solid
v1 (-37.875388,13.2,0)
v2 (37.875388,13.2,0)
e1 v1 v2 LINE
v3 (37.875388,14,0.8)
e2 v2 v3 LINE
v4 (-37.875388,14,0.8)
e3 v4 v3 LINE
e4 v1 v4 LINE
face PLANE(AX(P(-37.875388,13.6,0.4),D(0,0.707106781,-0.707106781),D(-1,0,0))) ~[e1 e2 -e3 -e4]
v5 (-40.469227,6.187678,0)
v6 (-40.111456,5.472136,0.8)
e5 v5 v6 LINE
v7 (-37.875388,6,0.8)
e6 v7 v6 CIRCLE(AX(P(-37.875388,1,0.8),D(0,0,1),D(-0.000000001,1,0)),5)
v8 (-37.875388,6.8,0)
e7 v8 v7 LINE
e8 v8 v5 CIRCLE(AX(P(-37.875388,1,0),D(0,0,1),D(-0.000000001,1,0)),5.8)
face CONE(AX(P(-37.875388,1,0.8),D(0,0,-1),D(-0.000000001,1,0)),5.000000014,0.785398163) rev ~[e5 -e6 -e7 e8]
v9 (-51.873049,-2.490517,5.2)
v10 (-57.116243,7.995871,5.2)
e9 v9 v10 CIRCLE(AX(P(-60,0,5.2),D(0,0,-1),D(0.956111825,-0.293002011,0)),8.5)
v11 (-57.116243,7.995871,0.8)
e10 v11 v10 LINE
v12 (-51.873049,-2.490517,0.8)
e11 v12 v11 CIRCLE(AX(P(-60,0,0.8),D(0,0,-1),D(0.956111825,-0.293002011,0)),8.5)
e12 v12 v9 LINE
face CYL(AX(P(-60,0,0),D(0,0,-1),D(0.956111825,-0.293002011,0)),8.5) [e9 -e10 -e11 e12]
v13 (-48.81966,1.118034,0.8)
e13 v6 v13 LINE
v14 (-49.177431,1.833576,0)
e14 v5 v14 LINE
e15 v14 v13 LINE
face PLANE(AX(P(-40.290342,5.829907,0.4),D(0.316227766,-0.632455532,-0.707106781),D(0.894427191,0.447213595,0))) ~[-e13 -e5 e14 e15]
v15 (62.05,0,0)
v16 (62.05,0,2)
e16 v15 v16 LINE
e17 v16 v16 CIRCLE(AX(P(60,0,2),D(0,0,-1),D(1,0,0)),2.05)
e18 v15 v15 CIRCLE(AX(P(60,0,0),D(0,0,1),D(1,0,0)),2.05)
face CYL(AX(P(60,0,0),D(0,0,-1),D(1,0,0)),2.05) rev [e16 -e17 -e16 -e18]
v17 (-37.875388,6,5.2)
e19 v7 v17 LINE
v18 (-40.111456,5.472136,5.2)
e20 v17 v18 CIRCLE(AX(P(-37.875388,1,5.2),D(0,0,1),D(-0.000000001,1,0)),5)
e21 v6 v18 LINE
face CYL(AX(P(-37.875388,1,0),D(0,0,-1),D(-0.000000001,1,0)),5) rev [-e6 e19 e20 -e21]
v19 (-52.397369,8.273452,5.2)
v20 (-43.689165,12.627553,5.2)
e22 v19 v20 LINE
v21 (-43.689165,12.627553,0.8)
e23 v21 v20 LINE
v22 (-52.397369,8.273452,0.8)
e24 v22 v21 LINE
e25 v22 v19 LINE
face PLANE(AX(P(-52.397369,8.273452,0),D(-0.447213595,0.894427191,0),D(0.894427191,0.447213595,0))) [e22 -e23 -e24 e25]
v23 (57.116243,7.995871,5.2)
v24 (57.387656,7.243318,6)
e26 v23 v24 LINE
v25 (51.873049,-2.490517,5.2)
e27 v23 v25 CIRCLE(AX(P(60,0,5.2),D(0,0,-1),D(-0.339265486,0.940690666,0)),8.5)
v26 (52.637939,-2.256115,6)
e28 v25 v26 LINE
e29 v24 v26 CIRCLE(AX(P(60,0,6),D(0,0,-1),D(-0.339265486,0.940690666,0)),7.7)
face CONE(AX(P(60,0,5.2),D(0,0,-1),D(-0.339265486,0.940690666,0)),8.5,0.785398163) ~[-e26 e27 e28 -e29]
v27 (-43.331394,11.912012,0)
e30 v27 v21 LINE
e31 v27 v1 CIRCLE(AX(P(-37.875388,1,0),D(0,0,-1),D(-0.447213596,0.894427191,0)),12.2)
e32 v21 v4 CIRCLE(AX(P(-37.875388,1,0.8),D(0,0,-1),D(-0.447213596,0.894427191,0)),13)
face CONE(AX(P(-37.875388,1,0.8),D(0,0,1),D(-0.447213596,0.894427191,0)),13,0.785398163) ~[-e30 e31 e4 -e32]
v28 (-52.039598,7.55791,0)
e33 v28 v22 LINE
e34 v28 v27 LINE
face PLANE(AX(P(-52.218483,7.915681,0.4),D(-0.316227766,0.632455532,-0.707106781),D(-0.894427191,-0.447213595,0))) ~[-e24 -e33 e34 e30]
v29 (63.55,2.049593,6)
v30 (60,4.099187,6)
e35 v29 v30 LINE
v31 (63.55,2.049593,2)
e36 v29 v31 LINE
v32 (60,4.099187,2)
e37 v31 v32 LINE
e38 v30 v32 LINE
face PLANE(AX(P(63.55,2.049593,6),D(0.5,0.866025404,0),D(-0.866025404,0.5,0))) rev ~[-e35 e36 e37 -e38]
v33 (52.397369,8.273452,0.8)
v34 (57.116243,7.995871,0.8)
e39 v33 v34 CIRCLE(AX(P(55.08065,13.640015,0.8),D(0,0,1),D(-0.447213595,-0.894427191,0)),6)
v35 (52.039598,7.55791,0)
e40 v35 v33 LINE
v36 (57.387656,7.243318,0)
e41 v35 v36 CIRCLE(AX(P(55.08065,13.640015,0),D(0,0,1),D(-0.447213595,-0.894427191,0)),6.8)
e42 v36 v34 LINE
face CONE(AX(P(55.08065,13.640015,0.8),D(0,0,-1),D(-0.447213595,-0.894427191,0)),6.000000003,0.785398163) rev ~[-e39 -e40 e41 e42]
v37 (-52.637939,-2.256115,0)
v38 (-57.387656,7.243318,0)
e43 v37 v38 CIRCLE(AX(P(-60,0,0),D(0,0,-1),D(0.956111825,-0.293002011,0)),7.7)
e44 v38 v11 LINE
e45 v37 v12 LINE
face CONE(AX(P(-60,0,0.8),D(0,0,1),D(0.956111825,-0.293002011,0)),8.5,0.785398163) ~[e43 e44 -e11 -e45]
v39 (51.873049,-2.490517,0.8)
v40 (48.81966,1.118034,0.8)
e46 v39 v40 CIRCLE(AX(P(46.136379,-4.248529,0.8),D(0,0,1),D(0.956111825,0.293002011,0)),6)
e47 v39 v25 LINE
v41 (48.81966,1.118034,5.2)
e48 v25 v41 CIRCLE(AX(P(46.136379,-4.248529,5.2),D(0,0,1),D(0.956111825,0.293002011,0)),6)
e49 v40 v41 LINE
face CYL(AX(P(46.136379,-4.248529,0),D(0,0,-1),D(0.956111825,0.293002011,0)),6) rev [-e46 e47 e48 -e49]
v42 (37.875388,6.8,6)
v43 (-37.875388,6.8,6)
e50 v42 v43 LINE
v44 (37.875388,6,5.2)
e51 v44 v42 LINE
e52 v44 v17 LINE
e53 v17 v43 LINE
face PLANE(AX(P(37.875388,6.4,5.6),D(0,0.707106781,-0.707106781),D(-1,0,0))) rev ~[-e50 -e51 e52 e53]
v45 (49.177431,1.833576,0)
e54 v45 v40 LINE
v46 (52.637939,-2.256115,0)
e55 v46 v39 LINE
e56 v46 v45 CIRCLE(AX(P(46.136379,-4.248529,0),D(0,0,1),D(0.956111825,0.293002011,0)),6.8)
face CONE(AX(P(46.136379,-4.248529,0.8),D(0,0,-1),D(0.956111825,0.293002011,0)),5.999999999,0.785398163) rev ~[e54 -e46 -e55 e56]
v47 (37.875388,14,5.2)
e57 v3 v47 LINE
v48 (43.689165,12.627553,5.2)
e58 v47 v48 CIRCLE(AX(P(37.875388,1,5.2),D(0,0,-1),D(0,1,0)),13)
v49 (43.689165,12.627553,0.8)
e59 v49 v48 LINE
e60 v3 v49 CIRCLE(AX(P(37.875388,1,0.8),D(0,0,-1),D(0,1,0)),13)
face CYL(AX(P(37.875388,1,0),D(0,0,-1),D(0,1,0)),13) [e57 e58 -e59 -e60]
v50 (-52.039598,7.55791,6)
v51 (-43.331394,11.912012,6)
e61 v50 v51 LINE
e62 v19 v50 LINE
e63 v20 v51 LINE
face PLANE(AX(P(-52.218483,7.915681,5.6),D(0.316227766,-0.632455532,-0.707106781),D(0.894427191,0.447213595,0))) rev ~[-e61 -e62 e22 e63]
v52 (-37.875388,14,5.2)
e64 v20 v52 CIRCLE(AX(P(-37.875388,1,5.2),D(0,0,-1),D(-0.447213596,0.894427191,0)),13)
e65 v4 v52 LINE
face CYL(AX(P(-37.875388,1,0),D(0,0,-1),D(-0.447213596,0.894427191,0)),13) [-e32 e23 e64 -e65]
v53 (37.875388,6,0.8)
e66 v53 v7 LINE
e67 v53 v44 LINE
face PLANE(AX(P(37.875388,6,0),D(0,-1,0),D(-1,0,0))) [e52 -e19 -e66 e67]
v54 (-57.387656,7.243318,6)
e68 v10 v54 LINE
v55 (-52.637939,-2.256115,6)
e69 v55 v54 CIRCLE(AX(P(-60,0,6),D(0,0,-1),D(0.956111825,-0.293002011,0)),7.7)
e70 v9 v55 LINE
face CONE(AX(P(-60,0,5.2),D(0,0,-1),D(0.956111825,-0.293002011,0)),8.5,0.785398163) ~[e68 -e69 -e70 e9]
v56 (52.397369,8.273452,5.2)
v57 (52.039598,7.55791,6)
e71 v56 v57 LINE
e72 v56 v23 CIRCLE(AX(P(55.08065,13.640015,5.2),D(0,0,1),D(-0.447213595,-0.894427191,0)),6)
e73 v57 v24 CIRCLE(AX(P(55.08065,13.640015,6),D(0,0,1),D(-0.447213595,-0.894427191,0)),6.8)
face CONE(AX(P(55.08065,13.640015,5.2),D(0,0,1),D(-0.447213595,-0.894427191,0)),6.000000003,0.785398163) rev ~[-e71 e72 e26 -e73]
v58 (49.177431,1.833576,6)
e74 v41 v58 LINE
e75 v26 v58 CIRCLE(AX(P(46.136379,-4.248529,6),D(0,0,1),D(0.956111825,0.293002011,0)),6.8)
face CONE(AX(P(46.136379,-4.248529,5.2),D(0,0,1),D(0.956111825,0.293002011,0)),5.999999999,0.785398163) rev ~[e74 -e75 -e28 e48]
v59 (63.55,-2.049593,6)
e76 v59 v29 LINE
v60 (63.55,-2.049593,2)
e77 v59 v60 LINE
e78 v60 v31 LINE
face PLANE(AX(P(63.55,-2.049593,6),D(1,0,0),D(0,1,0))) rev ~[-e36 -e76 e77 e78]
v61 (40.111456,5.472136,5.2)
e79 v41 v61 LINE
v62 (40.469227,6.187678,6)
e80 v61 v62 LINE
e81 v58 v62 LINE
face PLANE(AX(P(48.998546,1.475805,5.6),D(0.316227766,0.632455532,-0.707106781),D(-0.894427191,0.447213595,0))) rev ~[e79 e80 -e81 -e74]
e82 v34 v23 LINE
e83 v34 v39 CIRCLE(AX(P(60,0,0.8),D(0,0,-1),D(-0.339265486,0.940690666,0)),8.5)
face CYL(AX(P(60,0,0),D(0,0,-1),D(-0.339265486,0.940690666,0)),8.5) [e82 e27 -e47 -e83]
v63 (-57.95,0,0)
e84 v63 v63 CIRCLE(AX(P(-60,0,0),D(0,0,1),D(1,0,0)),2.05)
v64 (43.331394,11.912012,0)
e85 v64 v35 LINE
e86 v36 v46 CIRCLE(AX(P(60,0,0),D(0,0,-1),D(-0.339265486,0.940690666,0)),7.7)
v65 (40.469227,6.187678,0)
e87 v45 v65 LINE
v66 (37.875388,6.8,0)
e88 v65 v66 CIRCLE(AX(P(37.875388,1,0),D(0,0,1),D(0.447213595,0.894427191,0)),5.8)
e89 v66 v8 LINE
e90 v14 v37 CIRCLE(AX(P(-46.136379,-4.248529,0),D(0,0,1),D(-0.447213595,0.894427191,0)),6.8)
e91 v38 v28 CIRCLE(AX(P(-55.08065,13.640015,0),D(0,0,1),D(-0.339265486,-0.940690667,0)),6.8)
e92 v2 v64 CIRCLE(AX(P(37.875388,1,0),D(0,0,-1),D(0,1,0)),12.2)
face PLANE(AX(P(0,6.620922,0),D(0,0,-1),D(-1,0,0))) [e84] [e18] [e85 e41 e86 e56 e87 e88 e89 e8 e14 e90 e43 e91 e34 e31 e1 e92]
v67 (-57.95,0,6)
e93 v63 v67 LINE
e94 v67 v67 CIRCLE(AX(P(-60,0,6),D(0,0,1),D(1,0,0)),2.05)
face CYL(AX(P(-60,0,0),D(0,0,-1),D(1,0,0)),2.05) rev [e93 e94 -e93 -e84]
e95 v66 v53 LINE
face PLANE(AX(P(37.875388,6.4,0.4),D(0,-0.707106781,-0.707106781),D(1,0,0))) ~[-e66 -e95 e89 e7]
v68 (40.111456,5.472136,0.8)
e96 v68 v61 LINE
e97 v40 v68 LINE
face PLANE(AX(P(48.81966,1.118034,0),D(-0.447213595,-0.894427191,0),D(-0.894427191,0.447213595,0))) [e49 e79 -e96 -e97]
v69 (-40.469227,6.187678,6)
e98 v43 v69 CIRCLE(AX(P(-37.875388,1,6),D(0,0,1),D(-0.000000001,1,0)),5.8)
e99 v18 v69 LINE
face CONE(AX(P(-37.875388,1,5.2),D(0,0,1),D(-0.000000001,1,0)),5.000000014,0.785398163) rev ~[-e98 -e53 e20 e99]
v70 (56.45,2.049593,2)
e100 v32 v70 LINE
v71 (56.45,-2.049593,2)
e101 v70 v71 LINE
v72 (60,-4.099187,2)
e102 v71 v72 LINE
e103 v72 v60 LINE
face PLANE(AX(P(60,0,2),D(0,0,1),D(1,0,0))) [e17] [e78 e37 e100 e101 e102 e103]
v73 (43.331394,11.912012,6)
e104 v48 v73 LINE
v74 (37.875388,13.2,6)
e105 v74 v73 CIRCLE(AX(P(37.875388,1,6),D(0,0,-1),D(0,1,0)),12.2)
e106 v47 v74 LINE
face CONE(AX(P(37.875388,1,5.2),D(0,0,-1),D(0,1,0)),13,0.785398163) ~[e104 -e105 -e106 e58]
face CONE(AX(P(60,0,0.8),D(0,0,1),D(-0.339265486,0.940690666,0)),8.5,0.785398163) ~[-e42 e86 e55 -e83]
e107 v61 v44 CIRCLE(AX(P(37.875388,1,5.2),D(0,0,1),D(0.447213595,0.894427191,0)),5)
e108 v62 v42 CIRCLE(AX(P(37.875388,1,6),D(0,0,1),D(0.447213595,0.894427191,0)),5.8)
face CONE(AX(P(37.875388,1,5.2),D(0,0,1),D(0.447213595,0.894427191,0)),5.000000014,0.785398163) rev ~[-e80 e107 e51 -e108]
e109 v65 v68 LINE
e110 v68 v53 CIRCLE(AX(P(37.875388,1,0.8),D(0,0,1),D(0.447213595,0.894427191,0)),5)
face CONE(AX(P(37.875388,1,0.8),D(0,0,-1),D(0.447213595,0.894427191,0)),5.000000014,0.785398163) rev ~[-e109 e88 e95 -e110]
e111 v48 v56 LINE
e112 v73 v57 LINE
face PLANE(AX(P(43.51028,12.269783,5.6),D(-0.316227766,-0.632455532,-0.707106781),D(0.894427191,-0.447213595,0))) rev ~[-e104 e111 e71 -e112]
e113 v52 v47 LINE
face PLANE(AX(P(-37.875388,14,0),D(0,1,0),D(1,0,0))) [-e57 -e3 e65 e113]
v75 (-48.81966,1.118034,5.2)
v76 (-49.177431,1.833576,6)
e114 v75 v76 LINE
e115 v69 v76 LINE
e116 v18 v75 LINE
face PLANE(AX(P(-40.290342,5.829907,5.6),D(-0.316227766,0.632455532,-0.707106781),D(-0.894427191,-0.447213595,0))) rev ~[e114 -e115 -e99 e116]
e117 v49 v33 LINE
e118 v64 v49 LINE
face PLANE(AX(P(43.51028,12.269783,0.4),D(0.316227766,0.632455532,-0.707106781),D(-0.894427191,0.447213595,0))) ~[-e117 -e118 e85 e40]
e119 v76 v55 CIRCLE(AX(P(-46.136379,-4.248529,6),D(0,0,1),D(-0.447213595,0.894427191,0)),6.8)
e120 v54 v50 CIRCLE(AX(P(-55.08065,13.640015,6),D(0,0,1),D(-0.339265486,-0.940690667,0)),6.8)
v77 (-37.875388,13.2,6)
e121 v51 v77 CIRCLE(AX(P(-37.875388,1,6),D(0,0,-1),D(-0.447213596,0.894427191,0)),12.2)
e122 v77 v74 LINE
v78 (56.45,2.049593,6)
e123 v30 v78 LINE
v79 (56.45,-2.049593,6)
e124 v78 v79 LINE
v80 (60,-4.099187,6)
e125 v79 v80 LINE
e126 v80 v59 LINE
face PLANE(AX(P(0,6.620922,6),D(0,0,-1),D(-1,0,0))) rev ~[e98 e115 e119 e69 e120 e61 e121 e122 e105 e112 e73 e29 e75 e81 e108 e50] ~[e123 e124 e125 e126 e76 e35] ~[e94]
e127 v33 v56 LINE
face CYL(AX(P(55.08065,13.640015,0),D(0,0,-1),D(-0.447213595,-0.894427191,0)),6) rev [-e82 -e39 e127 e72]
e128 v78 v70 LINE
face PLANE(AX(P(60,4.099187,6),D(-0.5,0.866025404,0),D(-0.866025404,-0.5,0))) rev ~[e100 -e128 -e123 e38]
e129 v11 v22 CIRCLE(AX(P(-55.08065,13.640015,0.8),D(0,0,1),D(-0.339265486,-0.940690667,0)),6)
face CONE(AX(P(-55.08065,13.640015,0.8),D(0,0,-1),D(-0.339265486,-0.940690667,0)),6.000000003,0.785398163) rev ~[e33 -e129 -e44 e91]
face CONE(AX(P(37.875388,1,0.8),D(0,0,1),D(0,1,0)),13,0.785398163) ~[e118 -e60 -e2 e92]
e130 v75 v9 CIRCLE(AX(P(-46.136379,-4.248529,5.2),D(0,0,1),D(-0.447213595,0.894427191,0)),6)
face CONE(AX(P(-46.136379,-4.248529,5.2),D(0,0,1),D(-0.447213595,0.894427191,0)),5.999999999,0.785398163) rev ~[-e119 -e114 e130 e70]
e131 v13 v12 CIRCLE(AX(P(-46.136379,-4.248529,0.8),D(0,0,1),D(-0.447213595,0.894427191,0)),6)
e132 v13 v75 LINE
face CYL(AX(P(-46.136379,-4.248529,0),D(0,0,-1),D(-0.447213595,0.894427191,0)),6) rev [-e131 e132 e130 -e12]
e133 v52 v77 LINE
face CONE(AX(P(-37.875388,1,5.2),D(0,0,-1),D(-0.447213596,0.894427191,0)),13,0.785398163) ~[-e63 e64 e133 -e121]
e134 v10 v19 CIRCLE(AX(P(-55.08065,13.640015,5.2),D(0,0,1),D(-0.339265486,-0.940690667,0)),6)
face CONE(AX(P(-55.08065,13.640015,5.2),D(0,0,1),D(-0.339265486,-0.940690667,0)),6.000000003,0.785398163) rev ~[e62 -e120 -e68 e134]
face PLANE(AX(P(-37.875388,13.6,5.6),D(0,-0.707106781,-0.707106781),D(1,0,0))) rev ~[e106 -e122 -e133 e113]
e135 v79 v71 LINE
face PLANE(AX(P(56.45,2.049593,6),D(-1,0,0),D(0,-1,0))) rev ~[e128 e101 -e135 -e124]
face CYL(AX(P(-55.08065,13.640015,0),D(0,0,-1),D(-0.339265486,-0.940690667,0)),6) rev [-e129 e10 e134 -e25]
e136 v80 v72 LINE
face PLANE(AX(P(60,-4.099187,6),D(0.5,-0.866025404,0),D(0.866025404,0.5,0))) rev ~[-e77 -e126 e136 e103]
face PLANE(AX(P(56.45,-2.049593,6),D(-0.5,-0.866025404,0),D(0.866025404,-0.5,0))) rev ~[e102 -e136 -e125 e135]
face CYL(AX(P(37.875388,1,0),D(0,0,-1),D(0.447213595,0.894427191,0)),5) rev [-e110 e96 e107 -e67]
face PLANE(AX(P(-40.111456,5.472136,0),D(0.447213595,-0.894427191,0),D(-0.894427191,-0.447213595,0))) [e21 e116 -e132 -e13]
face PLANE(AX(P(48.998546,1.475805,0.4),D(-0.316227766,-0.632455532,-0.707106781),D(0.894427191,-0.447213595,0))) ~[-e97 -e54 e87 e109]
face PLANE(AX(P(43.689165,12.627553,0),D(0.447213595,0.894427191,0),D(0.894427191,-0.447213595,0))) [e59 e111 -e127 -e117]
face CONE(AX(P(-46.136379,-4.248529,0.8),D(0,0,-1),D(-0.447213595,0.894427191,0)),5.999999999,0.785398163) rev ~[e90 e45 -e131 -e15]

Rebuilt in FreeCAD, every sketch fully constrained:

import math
import FreeCAD as App
import Part
import Sketcher

V = App.Vector
Q = App.Units.Quantity


def edges_at(feature, points):
    """Names of the edges that pass closest to the given points."""
    edges = feature.Shape.Edges
    near = lambda p: min(range(len(edges)), key=lambda i: edges[i].distToShape(Part.Vertex(*p))[0])
    return sorted({f"Edge{near(p) + 1}" for p in points})


def add_polygon(sketch, points):
    """Adds a closed chain of lines whose ends are joined by coincident constraints."""
    first, n = sketch.GeometryCount, len(points)
    for a, b in zip(points, points[1:] + points[:1]):
        sketch.addGeometry(Part.LineSegment(App.Vector(*a, 0), App.Vector(*b, 0)), False)
    for i in range(n):
        sketch.addConstraint(Sketcher.Constraint("Coincident", first + i, 2, first + (i + 1) % n, 1))

doc = App.newDocument("Part")
params = doc.addObject("Spreadsheet::Sheet", "Params")
for row, (alias, value) in enumerate([
    ("sketch1_radius", "6 mm"),
    ("sketch1_radius2", "5 mm"),
    ("sketch1_radius3", "13 mm"),
    ("sketch1_diameter", "4.1 mm"),
    ("sketch1_radius4", "8.5 mm"),
    ("pad1_length", "6 mm"),
    ("pocket1_length", "4 mm"),
    ("chamfer_size", "0.8 mm"),
], start=1):
    params.set(f"A{row}", alias)
    params.set(f"B{row}", "=" + value)
    params.setAlias(f"B{row}", alias)

body = doc.addObject("PartDesign::Body", "Body")

sketch1 = body.newObject("Sketcher::SketchObject", "Sketch")
sketch1.AttachmentSupport = (doc.getObject("XY_Plane"), [""])
sketch1.MapMode = "FlatFace"
sketch1.addGeometry(Part.LineSegment(V(-43.7, 12.6, 0), V(-52.4, 8.3, 0)), False)
sketch1.addGeometry(Part.ArcOfCircle(Part.Circle(V(-55.1, 13.6, 0), V(0, 0, 1), 6), math.radians(-110), math.radians(-63)), False)
sketch1.addGeometry(Part.ArcOfCircle(Part.Circle(V(-60, 0, 0), V(0, 0, 1), 8.5), math.radians(70), math.radians(343)), False)
sketch1.addGeometry(Part.ArcOfCircle(Part.Circle(V(-46.1, -4.2, 0), V(0, 0, 1), 6), math.radians(117), math.radians(163)), False)
sketch1.addGeometry(Part.LineSegment(V(-48.8, 1.1, 0), V(-40.1, 5.5, 0)), False)
sketch1.addGeometry(Part.ArcOfCircle(Part.Circle(V(-37.9, 1, 0), V(0, 0, 1), 5), math.radians(90), math.radians(117)), False)
sketch1.addGeometry(Part.LineSegment(V(-37.9, 6, 0), V(37.9, 6, 0)), False)
sketch1.addGeometry(Part.ArcOfCircle(Part.Circle(V(37.9, 1, 0), V(0, 0, 1), 5), math.radians(63), math.radians(90)), False)
sketch1.addGeometry(Part.LineSegment(V(40.1, 5.5, 0), V(48.8, 1.1, 0)), False)
sketch1.addGeometry(Part.ArcOfCircle(Part.Circle(V(46.1, -4.2, 0), V(0, 0, 1), 6), math.radians(17), math.radians(63)), False)
sketch1.addGeometry(Part.ArcOfCircle(Part.Circle(V(60, 0, 0), V(0, 0, 1), 8.5), math.radians(-163), math.radians(110)), False)
sketch1.addGeometry(Part.ArcOfCircle(Part.Circle(V(55.1, 13.6, 0), V(0, 0, 1), 6), math.radians(-117), math.radians(-70)), False)
sketch1.addGeometry(Part.LineSegment(V(52.4, 8.3, 0), V(43.7, 12.6, 0)), False)
sketch1.addGeometry(Part.ArcOfCircle(Part.Circle(V(37.9, 1, 0), V(0, 0, 1), 13), math.radians(63), math.radians(90)), False)
sketch1.addGeometry(Part.LineSegment(V(37.9, 14, 0), V(-37.9, 14, 0)), False)
sketch1.addGeometry(Part.ArcOfCircle(Part.Circle(V(-37.9, 1, 0), V(0, 0, 1), 13), math.radians(90), math.radians(117)), False)
sketch1.addGeometry(Part.Circle(V(60, 0, 0), V(0, 0, 1), 2), False)
sketch1.addGeometry(Part.Circle(V(-60, 0, 0), V(0, 0, 1), 2), False)
sketch1.addConstraint(Sketcher.Constraint("Tangent", 0, 2, 1, 2))
sketch1.addConstraint(Sketcher.Constraint("Tangent", 1, 1, 2, 1))
sketch1.addConstraint(Sketcher.Constraint("Tangent", 2, 2, 3, 2))
sketch1.addConstraint(Sketcher.Constraint("Tangent", 3, 1, 4, 1))
sketch1.addConstraint(Sketcher.Constraint("Tangent", 4, 2, 5, 2))
sketch1.addConstraint(Sketcher.Constraint("Tangent", 5, 1, 6, 1))
sketch1.addConstraint(Sketcher.Constraint("Tangent", 6, 2, 7, 2))
sketch1.addConstraint(Sketcher.Constraint("Tangent", 7, 1, 8, 1))
sketch1.addConstraint(Sketcher.Constraint("Tangent", 8, 2, 9, 2))
sketch1.addConstraint(Sketcher.Constraint("Tangent", 9, 1, 10, 1))
sketch1.addConstraint(Sketcher.Constraint("Tangent", 10, 2, 11, 2))
sketch1.addConstraint(Sketcher.Constraint("Tangent", 11, 1, 12, 1))
sketch1.addConstraint(Sketcher.Constraint("Tangent", 12, 2, 13, 1))
sketch1.addConstraint(Sketcher.Constraint("Tangent", 13, 2, 14, 1))
sketch1.addConstraint(Sketcher.Constraint("Tangent", 14, 2, 15, 1))
sketch1.addConstraint(Sketcher.Constraint("Tangent", 15, 2, 0, 1))
sketch1.addConstraint(Sketcher.Constraint("Horizontal", 6))
sketch1.addConstraint(Sketcher.Constraint("Horizontal", 14))
sketch1.addConstraint(Sketcher.Constraint("Coincident", 13, 3, 7, 3))
sketch1.addConstraint(Sketcher.Constraint("Coincident", 15, 3, 5, 3))
sketch1.addConstraint(Sketcher.Constraint("Coincident", 16, 3, 10, 3))
sketch1.addConstraint(Sketcher.Constraint("Coincident", 17, 3, 2, 3))
sketch1.addConstraint(Sketcher.Constraint("Equal", 1, 3))
sketch1.addConstraint(Sketcher.Constraint("Equal", 5, 7))
sketch1.addConstraint(Sketcher.Constraint("Equal", 3, 9))
sketch1.addConstraint(Sketcher.Constraint("Equal", 2, 10))
sketch1.addConstraint(Sketcher.Constraint("Equal", 9, 11))
sketch1.addConstraint(Sketcher.Constraint("Equal", 16, 17))
sketch1.addConstraint(Sketcher.Constraint("Symmetric", 2, 3, 10, 3, -1, 1))
sketch1.addConstraint(Sketcher.Constraint("Symmetric", 3, 3, 9, 3, -2))
sketch1.addConstraint(Sketcher.Constraint("Symmetric", 0, 2, 11, 1, -2))
sketch1.addConstraint(Sketcher.Constraint("Parallel", 0, 4))
sketch1.addConstraint(Sketcher.Constraint("Equal", 0, 4))
sketch1.addConstraint(Sketcher.Constraint("Radius", 1, Q("6 mm")))
sketch1.addConstraint(Sketcher.Constraint("Radius", 5, Q("5 mm")))
sketch1.addConstraint(Sketcher.Constraint("Radius", 13, Q("13 mm")))
sketch1.addConstraint(Sketcher.Constraint("Diameter", 16, Q("4.1 mm")))
sketch1.addConstraint(Sketcher.Constraint("Radius", 2, Q("8.5 mm")))
sketch1.addConstraint(Sketcher.Constraint("DistanceX", 2, 3, -1, 1, Q("60 mm")))
sketch1.addConstraint(Sketcher.Constraint("DistanceY", -1, 1, 5, 3, Q("1 mm")))
sketch1.addConstraint(Sketcher.Constraint("DistanceY", 3, 3, 1, 1, Q("12.2444 mm")))
sketch1.setExpression("Constraints[33]", "Params.sketch1_radius")
sketch1.setExpression("Constraints[34]", "Params.sketch1_radius2")
sketch1.setExpression("Constraints[35]", "Params.sketch1_radius3")
sketch1.setExpression("Constraints[36]", "Params.sketch1_diameter")
sketch1.setExpression("Constraints[37]", "Params.sketch1_radius4")
pad1 = body.newObject("PartDesign::Pad", "Pad")
pad1.Profile = sketch1
pad1.setExpression("Length", "Params.pad1_length")

sketch2 = body.newObject("Sketcher::SketchObject", "Sketch001")
sketch2.AttachmentSupport = (doc.getObject("XY_Plane"), [""])
sketch2.MapMode = "FlatFace"
sketch2.AttachmentOffset = App.Placement(V(0, 0, 6), App.Rotation())
add_polygon(sketch2, [(60, 4.1), (56.5, 2), (56.5, -2), (60, -4.1), (63.5, -2), (63.5, 2)])
sketch2.addConstraint(Sketcher.Constraint("Vertical", 1))
sketch2.addConstraint(Sketcher.Constraint("Vertical", 4))
sketch2.addConstraint(Sketcher.Constraint("Symmetric", 2, 2, 5, 2, -1))
sketch2.addConstraint(Sketcher.Constraint("Parallel", 0, 3))
sketch2.addConstraint(Sketcher.Constraint("Parallel", 2, 5))
sketch2.addConstraint(Sketcher.Constraint("Horizontal", 1, 2, 3, 2))
sketch2.addConstraint(Sketcher.Constraint("Horizontal", 0, 2, 4, 2))
sketch2.addConstraint(Sketcher.Constraint("Angle", 0, Q("-150 deg")))
sketch2.addConstraint(Sketcher.Constraint("DistanceX", -1, 1, 2, 2, Q("60 mm")))
sketch2.addConstraint(Sketcher.Constraint("DistanceX", 1, 2, 3, 2, Q("7.1 mm")))
sketch2.addConstraint(Sketcher.Constraint("DistanceY", 1, 2, 1, 1, Q("4.099187 mm")))
pocket1 = body.newObject("PartDesign::Pocket", "Pocket")
pocket1.Profile = sketch2
pocket1.setExpression("Length", "Params.pocket1_length")
doc.recompute()

chamfer = body.newObject("PartDesign::Chamfer", "Chamfer")
chamfer.Base = (pocket1, edges_at(pocket1, [
    (-40.862, 13.652, 6),
    (48.043, 10.451, 0),
    (54.728, 7.65, 0),
    (67.603, -3.801, 0),
    (-48.043, 10.451, 6),
    (50.717, -0.373, 0),
    (44.466, 3.295, 0),
    (39.024, 5.866, 0),
    (0, 6, 0),
    (-39.024, 5.866, 0),
    (-44.466, 3.295, 0),
    (-50.717, -0.373, 0),
    (-67.603, -3.801, 0),
    (-54.728, 7.65, 0),
    (-48.043, 10.451, 0),
    (-54.728, 7.65, 6),
    (-40.862, 13.652, 0),
    (0, 14, 0),
    (40.862, 13.652, 0),
    (-67.603, -3.801, 6),
    (-50.717, -0.373, 6),
    (-44.466, 3.295, 6),
    (-39.024, 5.866, 6),
    (0, 6, 6),
    (39.024, 5.866, 6),
    (44.466, 3.295, 6),
    (40.862, 13.652, 6),
    (50.717, -0.373, 6),
    (67.603, -3.801, 6),
    (54.728, 7.65, 6),
    (48.043, 10.451, 6),
    (0, 14, 6),
]))
chamfer.setExpression("Size", "Params.chamfer_size")

doc.recompute()
